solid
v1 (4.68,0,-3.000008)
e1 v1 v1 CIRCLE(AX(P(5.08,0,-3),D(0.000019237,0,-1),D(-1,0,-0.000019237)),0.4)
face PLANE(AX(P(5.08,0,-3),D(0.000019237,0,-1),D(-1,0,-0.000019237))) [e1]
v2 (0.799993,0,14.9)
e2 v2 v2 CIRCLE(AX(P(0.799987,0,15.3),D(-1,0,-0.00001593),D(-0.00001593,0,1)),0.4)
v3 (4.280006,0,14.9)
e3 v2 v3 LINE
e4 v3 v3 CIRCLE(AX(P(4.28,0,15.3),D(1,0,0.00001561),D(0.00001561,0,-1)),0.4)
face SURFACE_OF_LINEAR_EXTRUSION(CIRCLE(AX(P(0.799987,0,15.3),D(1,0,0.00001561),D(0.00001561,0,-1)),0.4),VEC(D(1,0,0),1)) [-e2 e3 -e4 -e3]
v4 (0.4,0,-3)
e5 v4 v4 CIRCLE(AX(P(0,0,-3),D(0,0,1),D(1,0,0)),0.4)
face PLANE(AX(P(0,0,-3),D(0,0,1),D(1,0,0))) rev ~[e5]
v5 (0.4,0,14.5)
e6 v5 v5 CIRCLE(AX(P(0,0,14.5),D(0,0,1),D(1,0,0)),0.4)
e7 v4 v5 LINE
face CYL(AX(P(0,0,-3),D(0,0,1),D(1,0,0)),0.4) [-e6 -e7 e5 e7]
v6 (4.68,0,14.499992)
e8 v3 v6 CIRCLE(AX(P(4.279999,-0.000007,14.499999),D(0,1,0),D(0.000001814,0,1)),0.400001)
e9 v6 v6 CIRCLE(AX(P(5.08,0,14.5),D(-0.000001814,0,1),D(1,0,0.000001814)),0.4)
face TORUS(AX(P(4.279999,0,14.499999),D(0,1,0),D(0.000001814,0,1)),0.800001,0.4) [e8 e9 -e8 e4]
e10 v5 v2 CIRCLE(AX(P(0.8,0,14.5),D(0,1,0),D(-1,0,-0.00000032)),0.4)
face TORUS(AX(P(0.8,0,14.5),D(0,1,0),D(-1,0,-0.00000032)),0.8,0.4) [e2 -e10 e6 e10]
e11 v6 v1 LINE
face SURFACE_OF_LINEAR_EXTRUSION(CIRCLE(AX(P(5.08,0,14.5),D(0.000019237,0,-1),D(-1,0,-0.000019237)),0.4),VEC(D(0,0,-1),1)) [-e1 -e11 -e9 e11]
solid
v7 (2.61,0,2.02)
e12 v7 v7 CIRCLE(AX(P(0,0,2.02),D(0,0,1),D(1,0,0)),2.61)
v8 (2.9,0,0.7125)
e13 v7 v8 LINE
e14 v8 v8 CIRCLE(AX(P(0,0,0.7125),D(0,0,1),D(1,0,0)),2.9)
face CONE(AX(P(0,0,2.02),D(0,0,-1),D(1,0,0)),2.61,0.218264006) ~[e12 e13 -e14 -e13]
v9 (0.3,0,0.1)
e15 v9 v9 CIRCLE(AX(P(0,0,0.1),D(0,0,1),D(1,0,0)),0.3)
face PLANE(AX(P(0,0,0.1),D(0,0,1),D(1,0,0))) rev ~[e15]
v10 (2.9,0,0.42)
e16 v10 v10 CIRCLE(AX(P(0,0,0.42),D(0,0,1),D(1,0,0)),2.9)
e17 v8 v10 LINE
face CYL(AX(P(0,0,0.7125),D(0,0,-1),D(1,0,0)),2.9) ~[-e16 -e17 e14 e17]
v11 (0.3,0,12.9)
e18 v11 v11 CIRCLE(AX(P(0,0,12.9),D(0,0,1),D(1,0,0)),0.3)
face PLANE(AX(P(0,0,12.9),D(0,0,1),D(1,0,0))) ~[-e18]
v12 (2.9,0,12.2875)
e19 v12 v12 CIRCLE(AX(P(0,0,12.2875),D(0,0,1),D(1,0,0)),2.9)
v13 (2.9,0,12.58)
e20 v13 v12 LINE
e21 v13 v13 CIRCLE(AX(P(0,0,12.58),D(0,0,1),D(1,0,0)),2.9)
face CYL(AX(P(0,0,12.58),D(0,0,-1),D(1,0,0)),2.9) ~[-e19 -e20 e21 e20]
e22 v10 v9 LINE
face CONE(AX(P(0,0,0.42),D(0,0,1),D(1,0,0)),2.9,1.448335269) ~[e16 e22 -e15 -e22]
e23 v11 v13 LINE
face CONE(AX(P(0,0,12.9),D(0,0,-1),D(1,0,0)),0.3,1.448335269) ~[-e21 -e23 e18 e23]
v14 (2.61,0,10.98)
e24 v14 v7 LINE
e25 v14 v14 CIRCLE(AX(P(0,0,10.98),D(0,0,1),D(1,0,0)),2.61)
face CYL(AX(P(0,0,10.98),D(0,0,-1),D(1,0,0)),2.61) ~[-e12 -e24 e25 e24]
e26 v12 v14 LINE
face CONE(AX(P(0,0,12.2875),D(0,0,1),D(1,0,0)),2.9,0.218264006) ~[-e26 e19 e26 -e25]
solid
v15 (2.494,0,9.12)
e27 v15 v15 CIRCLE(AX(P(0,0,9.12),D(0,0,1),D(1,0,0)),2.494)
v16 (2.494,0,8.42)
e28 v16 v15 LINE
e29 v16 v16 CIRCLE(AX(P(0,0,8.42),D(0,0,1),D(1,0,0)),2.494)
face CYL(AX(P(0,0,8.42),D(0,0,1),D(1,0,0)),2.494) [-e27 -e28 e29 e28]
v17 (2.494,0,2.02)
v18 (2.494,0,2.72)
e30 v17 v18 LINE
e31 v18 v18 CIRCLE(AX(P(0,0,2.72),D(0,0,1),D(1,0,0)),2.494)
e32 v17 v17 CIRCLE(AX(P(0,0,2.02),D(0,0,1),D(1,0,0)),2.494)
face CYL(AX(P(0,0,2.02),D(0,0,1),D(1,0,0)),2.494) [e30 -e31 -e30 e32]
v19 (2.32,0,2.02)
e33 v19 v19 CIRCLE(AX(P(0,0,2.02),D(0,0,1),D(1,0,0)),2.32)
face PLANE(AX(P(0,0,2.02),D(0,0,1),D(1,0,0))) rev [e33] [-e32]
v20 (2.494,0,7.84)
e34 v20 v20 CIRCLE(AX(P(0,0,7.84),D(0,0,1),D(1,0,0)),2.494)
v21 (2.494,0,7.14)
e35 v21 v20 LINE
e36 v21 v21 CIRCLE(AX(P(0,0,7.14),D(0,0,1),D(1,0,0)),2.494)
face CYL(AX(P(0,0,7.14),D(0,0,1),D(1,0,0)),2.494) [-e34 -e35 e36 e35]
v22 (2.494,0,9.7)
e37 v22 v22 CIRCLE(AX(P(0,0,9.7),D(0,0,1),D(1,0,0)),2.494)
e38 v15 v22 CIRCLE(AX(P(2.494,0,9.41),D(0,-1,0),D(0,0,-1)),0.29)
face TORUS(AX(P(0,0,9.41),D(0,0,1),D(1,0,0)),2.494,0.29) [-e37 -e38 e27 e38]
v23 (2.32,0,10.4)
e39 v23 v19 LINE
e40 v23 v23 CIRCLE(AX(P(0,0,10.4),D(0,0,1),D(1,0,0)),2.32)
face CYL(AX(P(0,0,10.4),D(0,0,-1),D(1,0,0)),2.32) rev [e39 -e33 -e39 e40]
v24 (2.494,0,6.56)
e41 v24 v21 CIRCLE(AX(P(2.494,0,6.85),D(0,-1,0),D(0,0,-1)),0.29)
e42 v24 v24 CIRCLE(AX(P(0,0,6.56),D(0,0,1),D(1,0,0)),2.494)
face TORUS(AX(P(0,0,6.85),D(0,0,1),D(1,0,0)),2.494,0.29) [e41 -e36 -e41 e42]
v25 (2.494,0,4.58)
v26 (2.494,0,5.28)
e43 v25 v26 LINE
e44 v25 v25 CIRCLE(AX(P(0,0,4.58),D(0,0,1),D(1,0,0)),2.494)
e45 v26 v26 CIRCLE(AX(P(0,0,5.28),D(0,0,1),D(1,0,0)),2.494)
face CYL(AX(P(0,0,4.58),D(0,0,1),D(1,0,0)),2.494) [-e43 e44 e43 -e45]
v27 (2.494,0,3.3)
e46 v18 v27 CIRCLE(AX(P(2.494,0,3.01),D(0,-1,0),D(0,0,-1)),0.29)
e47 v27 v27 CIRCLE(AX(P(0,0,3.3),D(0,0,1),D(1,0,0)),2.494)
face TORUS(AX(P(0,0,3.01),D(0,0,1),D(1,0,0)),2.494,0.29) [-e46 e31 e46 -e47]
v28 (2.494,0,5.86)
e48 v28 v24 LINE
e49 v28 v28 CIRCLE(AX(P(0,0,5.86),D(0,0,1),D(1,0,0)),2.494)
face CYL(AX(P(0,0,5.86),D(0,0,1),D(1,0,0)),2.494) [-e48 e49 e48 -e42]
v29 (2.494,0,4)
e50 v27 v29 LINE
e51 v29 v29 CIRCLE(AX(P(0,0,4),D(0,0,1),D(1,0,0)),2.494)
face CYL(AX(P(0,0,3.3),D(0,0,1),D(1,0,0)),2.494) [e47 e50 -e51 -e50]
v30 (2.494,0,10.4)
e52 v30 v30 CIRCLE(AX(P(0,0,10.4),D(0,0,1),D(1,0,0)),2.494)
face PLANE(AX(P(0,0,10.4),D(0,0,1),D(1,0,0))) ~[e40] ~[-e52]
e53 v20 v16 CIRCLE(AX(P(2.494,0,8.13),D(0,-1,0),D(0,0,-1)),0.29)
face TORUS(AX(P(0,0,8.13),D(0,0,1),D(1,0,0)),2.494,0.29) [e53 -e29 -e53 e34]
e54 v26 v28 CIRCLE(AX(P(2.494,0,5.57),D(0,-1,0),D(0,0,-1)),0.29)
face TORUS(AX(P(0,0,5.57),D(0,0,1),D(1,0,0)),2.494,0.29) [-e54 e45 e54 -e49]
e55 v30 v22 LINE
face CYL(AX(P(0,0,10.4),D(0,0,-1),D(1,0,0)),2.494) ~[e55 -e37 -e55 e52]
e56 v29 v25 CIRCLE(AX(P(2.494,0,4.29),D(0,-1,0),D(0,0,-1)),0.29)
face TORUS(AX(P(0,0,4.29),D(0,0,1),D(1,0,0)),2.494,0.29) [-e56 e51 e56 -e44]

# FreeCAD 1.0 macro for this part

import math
import FreeCAD as App
import Part
import Sketcher
from FreeCAD import Vector


def add_polygon(sketch, points):
    """Adds a closed chain of lines whose ends are joined by coincident constraints."""
    first, n = sketch.GeometryCount, len(points)
    for a, b in zip(points, points[1:] + points[:1]):
        sketch.addGeometry(Part.LineSegment(App.Vector(*a, 0), App.Vector(*b, 0)), False)
    for i in range(n):
        sketch.addConstraint(Sketcher.Constraint("Coincident", first + i, 2, first + (i + 1) % n, 1))

doc = App.newDocument("Part")
body = doc.addObject("PartDesign::Body", "Body")

sketch1 = doc.addObject("Sketcher::SketchObject", "Sketch")
body.addObject(sketch1)
sketch1.AttachmentSupport = (doc.XY_Plane, [""])
sketch1.MapMode = "FlatFace"
sketch1.AttachmentOffset = App.Placement(Vector(0, 0, -2), App.Rotation())
sketch1.addGeometry(Part.Circle(Vector(0, 0, 0), Vector(0, 0, 1), 0.4), False)
sketch1.addConstraint(Sketcher.Constraint("Coincident", 0, 3, -1, 1))
sketch1.addConstraint(Sketcher.Constraint("Diameter", 0, 0.8))

sketch2 = doc.addObject("Sketcher::SketchObject", "Sketch001")
body.addObject(sketch2)
sketch2.AttachmentSupport = (doc.XZ_Plane, [""])
sketch2.MapMode = "FlatFace"
sketch2.addGeometry(Part.LineSegment(Vector(0, -3, 0), Vector(0, 14.5, 0)), False)
sketch2.addGeometry(Part.ArcOfCircle(Part.Circle(Vector(0.8, 14.5, 0), Vector(0, 0, 1), 0.8), math.radians(90.000913), math.radians(180.000018)), False)
sketch2.addGeometry(Part.LineSegment(Vector(0.799987, 15.3, 0), Vector(4.28, 15.3, 0)), False)
sketch2.addGeometry(Part.ArcOfCircle(Part.Circle(Vector(4.279999, 14.499999, 0), Vector(0, 0, 1), 0.800001), math.radians(0.000104), math.radians(89.999896)), False)
sketch2.addGeometry(Part.LineSegment(Vector(5.08, 14.5, 0), Vector(5.08, -3, 0)), False)
sketch2.addConstraint(Sketcher.Constraint("Tangent", 0, 2, 1, 2))
sketch2.addConstraint(Sketcher.Constraint("Coincident", 1, 1, 2, 1))
sketch2.addConstraint(Sketcher.Constraint("Tangent", 2, 2, 3, 2))
sketch2.addConstraint(Sketcher.Constraint("Tangent", 3, 1, 4, 1))
sketch2.addConstraint(Sketcher.Constraint("Vertical", 0))
sketch2.addConstraint(Sketcher.Constraint("Horizontal", 2))
sketch2.addConstraint(Sketcher.Constraint("Vertical", 4))
sketch2.addConstraint(Sketcher.Constraint("Equal", 1, 3))
sketch2.addConstraint(Sketcher.Constraint("PointOnObject", 0, 1, -2))
sketch2.addConstraint(Sketcher.Constraint("Horizontal", 0, 1, 4, 2))
sketch2.addConstraint(Sketcher.Constraint("Radius", 1, 0.8))
sketch2.addConstraint(Sketcher.Constraint("DistanceY", 0, 1, 0, 2, 17.5))
sketch2.addConstraint(Sketcher.Constraint("DistanceY", 0, 1, -1, 1, 3.0))
sketch2.addConstraint(Sketcher.Constraint("DistanceX", -1, 1, 3, 3, 4.279999))
sketch2.addConstraint(Sketcher.Constraint("DistanceX", 2, 1, 2, 2, 3.480013))
doc.recompute()

additivepipe = doc.addObject("PartDesign::AdditivePipe", "AdditivePipe")
body.addObject(additivepipe)
additivepipe.Profile = sketch1
additivepipe.Spine = (sketch2, ["Edge1", "Edge2", "Edge3", "Edge4", "Edge5"])
body2 = doc.addObject("PartDesign::Body", "Body001")

sketch3 = doc.addObject("Sketcher::SketchObject", "Sketch002")
body2.addObject(sketch3)
sketch3.AttachmentSupport = (doc.getObject("XZ_Plane001"), [""])
sketch3.MapMode = "FlatFace"
add_polygon(sketch3, [(0, 12.9), (0, 0.1), (0.3, 0.1), (2.9, 0.42), (2.9, 0.7125), (2.61, 2.02), (2.61, 10.98), (2.9, 12.2875), (2.9, 12.58), (0.3, 12.9)])
sketch3.addConstraint(Sketcher.Constraint("Vertical", 0))
sketch3.addConstraint(Sketcher.Constraint("Horizontal", 1))
sketch3.addConstraint(Sketcher.Constraint("Vertical", 3))
sketch3.addConstraint(Sketcher.Constraint("Vertical", 5))
sketch3.addConstraint(Sketcher.Constraint("Vertical", 7))
sketch3.addConstraint(Sketcher.Constraint("Horizontal", 9))
sketch3.addConstraint(Sketcher.Constraint("PointOnObject", 0, 2, -2))
sketch3.addConstraint(Sketcher.Constraint("Vertical", 3, 2, 6, 2))
sketch3.addConstraint(Sketcher.Constraint("Vertical", 1, 2, 8, 2))
sketch3.addConstraint(Sketcher.Constraint("Equal", 3, 7))
sketch3.addConstraint(Sketcher.Constraint("Equal", 4, 6))
sketch3.addConstraint(Sketcher.Constraint("Equal", 2, 8))
sketch3.addConstraint(Sketcher.Constraint("DistanceX", 1, 1, 1, 2, 0.3))
sketch3.addConstraint(Sketcher.Constraint("DistanceY", 0, 2, 0, 1, 12.8))
sketch3.addConstraint(Sketcher.Constraint("DistanceY", 5, 1, 5, 2, 8.96))
sketch3.addConstraint(Sketcher.Constraint("DistanceY", -1, 1, 0, 2, 0.1))
sketch3.addConstraint(Sketcher.Constraint("DistanceX", -1, 1, 2, 2, 2.9))
sketch3.addConstraint(Sketcher.Constraint("DistanceY", 2, 2, 4, 2, 1.6))
sketch3.addConstraint(Sketcher.Constraint("DistanceX", -1, 1, 4, 2, 2.61))
sketch3.addConstraint(Sketcher.Constraint("DistanceY", 3, 1, 3, 2, 0.2925))
revolution = doc.addObject("PartDesign::Revolution", "Revolution")
body2.addObject(revolution)
revolution.Profile = sketch3
revolution.ReferenceAxis = (sketch3, ["V_Axis"])
revolution.Angle = 360
body3 = doc.addObject("PartDesign::Body", "Body002")

sketch4 = doc.addObject("Sketcher::SketchObject", "Sketch003")
body3.addObject(sketch4)
sketch4.AttachmentSupport = (doc.getObject("XZ_Plane002"), [""])
sketch4.MapMode = "FlatFace"
sketch4.addGeometry(Part.LineSegment(Vector(2.32, 10.4, 0), Vector(2.32, 2.02, 0)), False)
sketch4.addGeometry(Part.LineSegment(Vector(2.32, 2.02, 0), Vector(2.494, 2.02, 0)), False)
sketch4.addGeometry(Part.LineSegment(Vector(2.494, 2.02, 0), Vector(2.494, 2.72, 0)), False)
sketch4.addGeometry(Part.ArcOfCircle(Part.Circle(Vector(2.494, 3.01, 0), Vector(0, 0, 1), 0.29), math.radians(-90), math.radians(90)), False)
sketch4.addGeometry(Part.LineSegment(Vector(2.494, 3.3, 0), Vector(2.494, 4, 0)), False)
sketch4.addGeometry(Part.ArcOfCircle(Part.Circle(Vector(2.494, 4.29, 0), Vector(0, 0, 1), 0.29), math.radians(-90), math.radians(90)), False)
sketch4.addGeometry(Part.LineSegment(Vector(2.494, 4.58, 0), Vector(2.494, 5.28, 0)), False)
sketch4.addGeometry(Part.ArcOfCircle(Part.Circle(Vector(2.494, 5.57, 0), Vector(0, 0, 1), 0.29), math.radians(-90), math.radians(90)), False)
sketch4.addGeometry(Part.LineSegment(Vector(2.494, 5.86, 0), Vector(2.494, 6.56, 0)), False)
sketch4.addGeometry(Part.ArcOfCircle(Part.Circle(Vector(2.494, 6.85, 0), Vector(0, 0, 1), 0.29), math.radians(-90), math.radians(90)), False)
sketch4.addGeometry(Part.LineSegment(Vector(2.494, 7.14, 0), Vector(2.494, 7.84, 0)), False)
sketch4.addGeometry(Part.ArcOfCircle(Part.Circle(Vector(2.494, 8.13, 0), Vector(0, 0, 1), 0.29), math.radians(-90), math.radians(90)), False)
sketch4.addGeometry(Part.LineSegment(Vector(2.494, 8.42, 0), Vector(2.494, 9.12, 0)), False)
sketch4.addGeometry(Part.ArcOfCircle(Part.Circle(Vector(2.494, 9.41, 0), Vector(0, 0, 1), 0.29), math.radians(-90), math.radians(90)), False)
sketch4.addGeometry(Part.LineSegment(Vector(2.494, 9.7, 0), Vector(2.494, 10.4, 0)), False)
sketch4.addGeometry(Part.LineSegment(Vector(2.494, 10.4, 0), Vector(2.32, 10.4, 0)), False)
sketch4.addConstraint(Sketcher.Constraint("Coincident", 0, 2, 1, 1))
sketch4.addConstraint(Sketcher.Constraint("Coincident", 1, 2, 2, 1))
sketch4.addConstraint(Sketcher.Constraint("Coincident", 2, 2, 3, 1))
sketch4.addConstraint(Sketcher.Constraint("Coincident", 3, 2, 4, 1))
sketch4.addConstraint(Sketcher.Constraint("Coincident", 4, 2, 5, 1))
sketch4.addConstraint(Sketcher.Constraint("Coincident", 5, 2, 6, 1))
sketch4.addConstraint(Sketcher.Constraint("Coincident", 6, 2, 7, 1))
sketch4.addConstraint(Sketcher.Constraint("Coincident", 7, 2, 8, 1))
sketch4.addConstraint(Sketcher.Constraint("Coincident", 8, 2, 9, 1))
sketch4.addConstraint(Sketcher.Constraint("Coincident", 9, 2, 10, 1))
sketch4.addConstraint(Sketcher.Constraint("Coincident", 10, 2, 11, 1))
sketch4.addConstraint(Sketcher.Constraint("Coincident", 11, 2, 12, 1))
sketch4.addConstraint(Sketcher.Constraint("Coincident", 12, 2, 13, 1))
sketch4.addConstraint(Sketcher.Constraint("Coincident", 13, 2, 14, 1))
sketch4.addConstraint(Sketcher.Constraint("Coincident", 14, 2, 15, 1))
sketch4.addConstraint(Sketcher.Constraint("Coincident", 15, 2, 0, 1))
sketch4.addConstraint(Sketcher.Constraint("Vertical", 0))
sketch4.addConstraint(Sketcher.Constraint("Horizontal", 1))
sketch4.addConstraint(Sketcher.Constraint("Vertical", 2))
sketch4.addConstraint(Sketcher.Constraint("Vertical", 4))
sketch4.addConstraint(Sketcher.Constraint("Vertical", 6))
sketch4.addConstraint(Sketcher.Constraint("Vertical", 8))
sketch4.addConstraint(Sketcher.Constraint("Vertical", 10))
sketch4.addConstraint(Sketcher.Constraint("Vertical", 12))
sketch4.addConstraint(Sketcher.Constraint("Vertical", 14))
sketch4.addConstraint(Sketcher.Constraint("Horizontal", 15))
sketch4.addConstraint(Sketcher.Constraint("Equal", 3, 5))
sketch4.addConstraint(Sketcher.Constraint("Equal", 5, 7))
sketch4.addConstraint(Sketcher.Constraint("Equal", 7, 9))
sketch4.addConstraint(Sketcher.Constraint("Equal", 9, 11))
sketch4.addConstraint(Sketcher.Constraint("Equal", 11, 13))
sketch4.addConstraint(Sketcher.Constraint("Vertical", 3, 3, 5, 3))
sketch4.addConstraint(Sketcher.Constraint("Vertical", 5, 3, 7, 3))
sketch4.addConstraint(Sketcher.Constraint("Vertical", 7, 3, 9, 3))
sketch4.addConstraint(Sketcher.Constraint("Vertical", 9, 3, 11, 3))
sketch4.addConstraint(Sketcher.Constraint("Vertical", 11, 3, 13, 3))
sketch4.addConstraint(Sketcher.Constraint("Vertical", 13, 3, 1, 2))
sketch4.addConstraint(Sketcher.Constraint("Vertical", 2, 2, 3, 2))
sketch4.addConstraint(Sketcher.Constraint("Vertical", 4, 2, 5, 2))
sketch4.addConstraint(Sketcher.Constraint("Vertical", 6, 2, 7, 2))
sketch4.addConstraint(Sketcher.Constraint("Vertical", 8, 2, 9, 2))
sketch4.addConstraint(Sketcher.Constraint("Vertical", 10, 2, 11, 2))
sketch4.addConstraint(Sketcher.Constraint("Vertical", 12, 2, 13, 2))
sketch4.addConstraint(Sketcher.Constraint("Equal", 2, 4))
sketch4.addConstraint(Sketcher.Constraint("Equal", 4, 6))
sketch4.addConstraint(Sketcher.Constraint("Equal", 6, 8))
sketch4.addConstraint(Sketcher.Constraint("Equal", 8, 10))
sketch4.addConstraint(Sketcher.Constraint("Equal", 10, 12))
sketch4.addConstraint(Sketcher.Constraint("Equal", 12, 14))
sketch4.addConstraint(Sketcher.Constraint("Radius", 3, 0.29))
sketch4.addConstraint(Sketcher.Constraint("DistanceY", 2, 1, 2, 2, 0.7))
sketch4.addConstraint(Sketcher.Constraint("DistanceY", -1, 1, 4, 2, 4.0))
sketch4.addConstraint(Sketcher.Constraint("DistanceX", 1, 1, 1, 2, 0.174))
sketch4.addConstraint(Sketcher.Constraint("DistanceX", -1, 1, 0, 2, 2.32))
revolution2 = doc.addObject("PartDesign::Revolution", "Revolution001")
body3.addObject(revolution2)
revolution2.Profile = sketch4
revolution2.ReferenceAxis = (sketch4, ["V_Axis"])
revolution2.Angle = 360

doc.recompute()
